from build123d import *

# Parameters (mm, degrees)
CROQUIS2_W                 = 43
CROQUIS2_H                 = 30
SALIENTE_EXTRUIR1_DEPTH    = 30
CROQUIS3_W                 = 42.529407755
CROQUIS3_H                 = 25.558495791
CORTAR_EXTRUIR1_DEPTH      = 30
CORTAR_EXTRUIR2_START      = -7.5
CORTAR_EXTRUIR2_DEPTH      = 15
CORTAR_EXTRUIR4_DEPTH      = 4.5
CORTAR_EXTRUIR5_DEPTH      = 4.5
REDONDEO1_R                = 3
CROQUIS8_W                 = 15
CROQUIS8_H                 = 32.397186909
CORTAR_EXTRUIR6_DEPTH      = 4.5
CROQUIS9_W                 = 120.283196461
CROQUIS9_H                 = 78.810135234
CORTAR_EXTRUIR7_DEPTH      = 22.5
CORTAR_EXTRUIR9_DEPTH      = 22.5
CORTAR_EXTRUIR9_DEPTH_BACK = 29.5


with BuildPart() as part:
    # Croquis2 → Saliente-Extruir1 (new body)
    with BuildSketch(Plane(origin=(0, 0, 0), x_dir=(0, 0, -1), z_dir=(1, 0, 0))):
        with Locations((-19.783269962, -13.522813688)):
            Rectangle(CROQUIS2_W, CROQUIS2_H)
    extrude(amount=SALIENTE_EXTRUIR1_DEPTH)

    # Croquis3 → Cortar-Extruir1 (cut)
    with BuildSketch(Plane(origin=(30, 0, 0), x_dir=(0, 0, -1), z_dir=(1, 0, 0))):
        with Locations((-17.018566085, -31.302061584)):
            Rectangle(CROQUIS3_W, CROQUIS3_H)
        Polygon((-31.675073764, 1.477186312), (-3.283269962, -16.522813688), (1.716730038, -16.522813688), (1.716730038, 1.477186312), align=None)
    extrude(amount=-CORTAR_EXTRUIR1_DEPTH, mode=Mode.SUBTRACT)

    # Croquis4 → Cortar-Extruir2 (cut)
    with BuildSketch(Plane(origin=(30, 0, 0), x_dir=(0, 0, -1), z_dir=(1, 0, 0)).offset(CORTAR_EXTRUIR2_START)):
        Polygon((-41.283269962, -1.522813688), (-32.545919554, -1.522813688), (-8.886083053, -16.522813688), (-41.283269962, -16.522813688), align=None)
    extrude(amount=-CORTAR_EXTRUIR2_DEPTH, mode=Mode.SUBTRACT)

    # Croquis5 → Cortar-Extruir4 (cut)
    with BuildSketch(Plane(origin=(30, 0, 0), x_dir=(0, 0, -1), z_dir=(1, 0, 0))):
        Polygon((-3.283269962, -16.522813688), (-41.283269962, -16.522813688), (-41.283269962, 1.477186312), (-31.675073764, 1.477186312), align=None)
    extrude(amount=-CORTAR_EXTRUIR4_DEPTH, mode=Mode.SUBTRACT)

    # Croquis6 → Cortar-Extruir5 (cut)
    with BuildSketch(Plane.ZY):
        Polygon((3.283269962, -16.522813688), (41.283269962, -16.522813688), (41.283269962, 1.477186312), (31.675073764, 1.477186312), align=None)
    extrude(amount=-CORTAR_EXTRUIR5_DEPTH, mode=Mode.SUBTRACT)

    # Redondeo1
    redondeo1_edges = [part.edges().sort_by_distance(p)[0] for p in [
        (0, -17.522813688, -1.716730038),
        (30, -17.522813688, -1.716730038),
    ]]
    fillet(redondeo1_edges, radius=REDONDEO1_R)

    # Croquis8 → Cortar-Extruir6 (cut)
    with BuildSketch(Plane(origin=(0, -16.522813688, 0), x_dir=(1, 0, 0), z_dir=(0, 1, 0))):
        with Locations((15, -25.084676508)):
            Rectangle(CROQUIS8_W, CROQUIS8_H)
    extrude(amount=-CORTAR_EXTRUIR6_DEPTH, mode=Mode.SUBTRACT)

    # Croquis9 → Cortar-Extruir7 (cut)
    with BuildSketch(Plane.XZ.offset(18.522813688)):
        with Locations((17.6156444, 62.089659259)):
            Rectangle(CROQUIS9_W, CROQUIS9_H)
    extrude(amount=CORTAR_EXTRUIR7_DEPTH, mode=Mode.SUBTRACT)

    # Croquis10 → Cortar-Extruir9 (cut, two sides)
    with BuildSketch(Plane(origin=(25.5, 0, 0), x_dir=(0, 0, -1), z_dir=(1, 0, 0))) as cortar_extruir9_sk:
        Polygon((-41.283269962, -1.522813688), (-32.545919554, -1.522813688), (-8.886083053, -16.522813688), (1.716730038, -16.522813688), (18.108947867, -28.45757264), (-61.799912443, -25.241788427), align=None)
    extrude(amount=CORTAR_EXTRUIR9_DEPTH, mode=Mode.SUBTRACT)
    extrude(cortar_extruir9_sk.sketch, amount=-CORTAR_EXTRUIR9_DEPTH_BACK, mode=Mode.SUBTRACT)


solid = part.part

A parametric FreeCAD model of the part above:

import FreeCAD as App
import Part
import Sketcher
from FreeCAD import Vector
Q = App.Units.Quantity


def edges_at(feature, points):
    """Names of the edges that pass closest to the given points."""
    edges = feature.Shape.Edges
    near = lambda p: min(range(len(edges)), key=lambda i: edges[i].distToShape(Part.Vertex(*p))[0])
    return sorted({f"Edge{near(p) + 1}" for p in points})

doc = App.newDocument("Part")
body = doc.addObject("PartDesign::Body", "Body")

sketch1 = doc.addObject("Sketcher::SketchObject", "Sketch")
body.addObject(sketch1)
sketch1.AttachmentSupport = (doc.YZ_Plane, [""])
sketch1.MapMode = "FlatFace"
sketch1.addGeometry(Part.LineSegment(Vector(1.477186, 41.28327, 0), Vector(-28.522814, 41.28327, 0)), False)
sketch1.addGeometry(Part.LineSegment(Vector(-28.522814, 41.28327, 0), Vector(-28.522814, -1.71673, 0)), False)
sketch1.addGeometry(Part.LineSegment(Vector(-28.522814, -1.71673, 0), Vector(1.477186, -1.71673, 0)), False)
sketch1.addGeometry(Part.LineSegment(Vector(1.477186, -1.71673, 0), Vector(1.477186, 41.28327, 0)), False)
sketch1.addConstraint(Sketcher.Constraint("Coincident", 0, 2, 1, 1))
sketch1.addConstraint(Sketcher.Constraint("Coincident", 1, 2, 2, 1))
sketch1.addConstraint(Sketcher.Constraint("Coincident", 2, 2, 3, 1))
sketch1.addConstraint(Sketcher.Constraint("Coincident", 3, 2, 0, 1))
sketch1.addConstraint(Sketcher.Constraint("Horizontal", 0))
sketch1.addConstraint(Sketcher.Constraint("Vertical", 1))
sketch1.addConstraint(Sketcher.Constraint("Horizontal", 2))
sketch1.addConstraint(Sketcher.Constraint("Vertical", 3))
sketch1.addConstraint(Sketcher.Constraint("DistanceX", 0, 2, 0, 1, Q("30 mm")))
sketch1.addConstraint(Sketcher.Constraint("DistanceY", 1, 2, 1, 1, Q("43 mm")))
sketch1.addConstraint(Sketcher.Constraint("DistanceY", -1, 1, 0, 2, Q("41.28327 mm")))
sketch1.addConstraint(Sketcher.Constraint("DistanceX", 0, 2, -1, 1, Q("28.522814 mm")))
pad1 = doc.addObject("PartDesign::Pad", "Pad")
body.addObject(pad1)
pad1.Profile = sketch1
pad1.Length = 30

sketch2 = doc.addObject("Sketcher::SketchObject", "Sketch001")
body.addObject(sketch2)
sketch2.AttachmentSupport = (doc.YZ_Plane, [""])
sketch2.MapMode = "FlatFace"
sketch2.AttachmentOffset = App.Placement(Vector(0, 0, 30), App.Rotation())
sketch2.addGeometry(Part.LineSegment(Vector(-18.522814, 38.28327, 0), Vector(-44.081309, 38.28327, 0)), False)
sketch2.addGeometry(Part.LineSegment(Vector(-44.081309, 38.28327, 0), Vector(-44.081309, -4.246138, 0)), False)
sketch2.addGeometry(Part.LineSegment(Vector(-44.081309, -4.246138, 0), Vector(-18.522814, -4.246138, 0)), False)
sketch2.addGeometry(Part.LineSegment(Vector(-18.522814, -4.246138, 0), Vector(-18.522814, 38.28327, 0)), False)
sketch2.addGeometry(Part.LineSegment(Vector(1.477186, 31.675074, 0), Vector(-16.522814, 3.28327, 0)), False)
sketch2.addGeometry(Part.LineSegment(Vector(-16.522814, 3.28327, 0), Vector(-16.522814, -1.71673, 0)), False)
sketch2.addGeometry(Part.LineSegment(Vector(-16.522814, -1.71673, 0), Vector(1.477186, -1.71673, 0)), False)
sketch2.addGeometry(Part.LineSegment(Vector(1.477186, -1.71673, 0), Vector(1.477186, 31.675074, 0)), False)
sketch2.addConstraint(Sketcher.Constraint("Coincident", 0, 2, 1, 1))
sketch2.addConstraint(Sketcher.Constraint("Coincident", 1, 2, 2, 1))
sketch2.addConstraint(Sketcher.Constraint("Coincident", 2, 2, 3, 1))
sketch2.addConstraint(Sketcher.Constraint("Coincident", 3, 2, 0, 1))
sketch2.addConstraint(Sketcher.Constraint("Coincident", 4, 2, 5, 1))
sketch2.addConstraint(Sketcher.Constraint("Coincident", 5, 2, 6, 1))
sketch2.addConstraint(Sketcher.Constraint("Coincident", 6, 2, 7, 1))
sketch2.addConstraint(Sketcher.Constraint("Coincident", 7, 2, 4, 1))
sketch2.addConstraint(Sketcher.Constraint("Horizontal", 0))
sketch2.addConstraint(Sketcher.Constraint("Vertical", 1))
sketch2.addConstraint(Sketcher.Constraint("Horizontal", 2))
sketch2.addConstraint(Sketcher.Constraint("Vertical", 3))
sketch2.addConstraint(Sketcher.Constraint("Vertical", 5))
sketch2.addConstraint(Sketcher.Constraint("Horizontal", 6))
sketch2.addConstraint(Sketcher.Constraint("Vertical", 7))
sketch2.addConstraint(Sketcher.Constraint("DistanceX", 6, 1, 6, 2, Q("18 mm")))
sketch2.addConstraint(Sketcher.Constraint("DistanceY", 5, 2, 5, 1, Q("5 mm")))
sketch2.addConstraint(Sketcher.Constraint("DistanceX", 2, 2, 4, 2, Q("2 mm")))
sketch2.addConstraint(Sketcher.Constraint("DistanceY", 4, 2, 3, 2, Q("35 mm")))
sketch2.addConstraint(Sketcher.Constraint("Distance", 4, Q("33.616879 mm")))
sketch2.addConstraint(Sketcher.Constraint("DistanceX", 0, 2, 0, 1, Q("25.558496 mm")))
sketch2.addConstraint(Sketcher.Constraint("DistanceY", 1, 2, 1, 1, Q("42.529408 mm")))
sketch2.addConstraint(Sketcher.Constraint("DistanceX", 0, 2, -1, 1, Q("44.081309 mm")))
sketch2.addConstraint(Sketcher.Constraint("DistanceY", -1, 1, 0, 2, Q("38.28327 mm")))
pocket1 = doc.addObject("PartDesign::Pocket", "Pocket")
body.addObject(pocket1)
pocket1.Profile = sketch2
pocket1.Length = 30

sketch3 = doc.addObject("Sketcher::SketchObject", "Sketch002")
body.addObject(sketch3)
sketch3.AttachmentSupport = (doc.YZ_Plane, [""])
sketch3.MapMode = "FlatFace"
sketch3.AttachmentOffset = App.Placement(Vector(0, 0, 22.5), App.Rotation())
sketch3.addGeometry(Part.LineSegment(Vector(-1.522814, 32.54592, 0), Vector(-1.522814, 41.28327, 0)), False)
sketch3.addGeometry(Part.LineSegment(Vector(-1.522814, 41.28327, 0), Vector(-16.522814, 41.28327, 0)), False)
sketch3.addGeometry(Part.LineSegment(Vector(-16.522814, 41.28327, 0), Vector(-16.522814, 8.886083, 0)), False)
sketch3.addGeometry(Part.LineSegment(Vector(-16.522814, 8.886083, 0), Vector(-1.522814, 32.54592, 0)), False)
sketch3.addConstraint(Sketcher.Constraint("Coincident", 0, 2, 1, 1))
sketch3.addConstraint(Sketcher.Constraint("Coincident", 1, 2, 2, 1))
sketch3.addConstraint(Sketcher.Constraint("Coincident", 2, 2, 3, 1))
sketch3.addConstraint(Sketcher.Constraint("Coincident", 3, 2, 0, 1))
sketch3.addConstraint(Sketcher.Constraint("Vertical", 0))
sketch3.addConstraint(Sketcher.Constraint("Horizontal", 1))
sketch3.addConstraint(Sketcher.Constraint("Vertical", 2))
sketch3.addConstraint(Sketcher.Constraint("DistanceX", 1, 2, 1, 1, Q("15 mm")))
sketch3.addConstraint(Sketcher.Constraint("DistanceY", 0, 1, 0, 2, Q("8.73735 mm")))
sketch3.addConstraint(Sketcher.Constraint("DistanceY", 2, 2, 2, 1, Q("32.397187 mm")))
sketch3.addConstraint(Sketcher.Constraint("DistanceY", -1, 1, 0, 2, Q("41.28327 mm")))
sketch3.addConstraint(Sketcher.Constraint("DistanceX", 0, 2, -1, 1, Q("1.522814 mm")))
pocket2 = doc.addObject("PartDesign::Pocket", "Pocket001")
body.addObject(pocket2)
pocket2.Profile = sketch3
pocket2.Length = 15

sketch4 = doc.addObject("Sketcher::SketchObject", "Sketch003")
body.addObject(sketch4)
sketch4.AttachmentSupport = (doc.YZ_Plane, [""])
sketch4.MapMode = "FlatFace"
sketch4.AttachmentOffset = App.Placement(Vector(0, 0, 30), App.Rotation())
sketch4.addGeometry(Part.LineSegment(Vector(-16.522814, 41.28327, 0), Vector(-16.522814, 3.28327, 0)), False)
sketch4.addGeometry(Part.LineSegment(Vector(-16.522814, 3.28327, 0), Vector(1.477186, 31.675074, 0)), False)
sketch4.addGeometry(Part.LineSegment(Vector(1.477186, 31.675074, 0), Vector(1.477186, 41.28327, 0)), False)
sketch4.addGeometry(Part.LineSegment(Vector(1.477186, 41.28327, 0), Vector(-16.522814, 41.28327, 0)), False)
sketch4.addConstraint(Sketcher.Constraint("Coincident", 0, 2, 1, 1))
sketch4.addConstraint(Sketcher.Constraint("Coincident", 1, 2, 2, 1))
sketch4.addConstraint(Sketcher.Constraint("Coincident", 2, 2, 3, 1))
sketch4.addConstraint(Sketcher.Constraint("Coincident", 3, 2, 0, 1))
sketch4.addConstraint(Sketcher.Constraint("Vertical", 0))
sketch4.addConstraint(Sketcher.Constraint("Vertical", 2))
sketch4.addConstraint(Sketcher.Constraint("Horizontal", 3))
sketch4.addConstraint(Sketcher.Constraint("DistanceX", 3, 2, 3, 1, Q("18 mm")))
sketch4.addConstraint(Sketcher.Constraint("DistanceY", 0, 2, 0, 1, Q("38 mm")))
sketch4.addConstraint(Sketcher.Constraint("Distance", 1, Q("33.616879 mm")))
sketch4.addConstraint(Sketcher.Constraint("DistanceY", -1, 1, 0, 2, Q("3.28327 mm")))
sketch4.addConstraint(Sketcher.Constraint("DistanceX", 0, 2, -1, 1, Q("16.522814 mm")))
pocket3 = doc.addObject("PartDesign::Pocket", "Pocket002")
body.addObject(pocket3)
pocket3.Profile = sketch4
pocket3.Length = 4.5

sketch5 = doc.addObject("Sketcher::SketchObject", "Sketch004")
body.addObject(sketch5)
sketch5.AttachmentSupport = (doc.YZ_Plane, [""])
sketch5.MapMode = "FlatFace"
sketch5.addGeometry(Part.LineSegment(Vector(-16.522814, 3.28327, 0), Vector(-16.522814, 41.28327, 0)), False)
sketch5.addGeometry(Part.LineSegment(Vector(-16.522814, 41.28327, 0), Vector(1.477186, 41.28327, 0)), False)
sketch5.addGeometry(Part.LineSegment(Vector(1.477186, 41.28327, 0), Vector(1.477186, 31.675074, 0)), False)
sketch5.addGeometry(Part.LineSegment(Vector(1.477186, 31.675074, 0), Vector(-16.522814, 3.28327, 0)), False)
sketch5.addConstraint(Sketcher.Constraint("Coincident", 0, 2, 1, 1))
sketch5.addConstraint(Sketcher.Constraint("Coincident", 1, 2, 2, 1))
sketch5.addConstraint(Sketcher.Constraint("Coincident", 2, 2, 3, 1))
sketch5.addConstraint(Sketcher.Constraint("Coincident", 3, 2, 0, 1))
sketch5.addConstraint(Sketcher.Constraint("Vertical", 0))
sketch5.addConstraint(Sketcher.Constraint("Horizontal", 1))
sketch5.addConstraint(Sketcher.Constraint("Vertical", 2))
sketch5.addConstraint(Sketcher.Constraint("DistanceX", 1, 1, 1, 2, Q("18 mm")))
sketch5.addConstraint(Sketcher.Constraint("DistanceY", 0, 1, 0, 2, Q("38 mm")))
sketch5.addConstraint(Sketcher.Constraint("Distance", 3, Q("33.616879 mm")))
sketch5.addConstraint(Sketcher.Constraint("DistanceY", -1, 1, 0, 2, Q("41.28327 mm")))
sketch5.addConstraint(Sketcher.Constraint("DistanceX", 0, 2, -1, 1, Q("16.522814 mm")))
pocket4 = doc.addObject("PartDesign::Pocket", "Pocket003")
body.addObject(pocket4)
pocket4.Profile = sketch5
pocket4.Length = 4.5
pocket4.Reversed = True
doc.recompute()

fillet = doc.addObject("PartDesign::Fillet", "Fillet")
body.addObject(fillet)
fillet.Base = (pocket4, edges_at(pocket4, [(0, -17.523, -1.717), (30, -17.523, -1.717)]))
fillet.Radius = 3

sketch6 = doc.addObject("Sketcher::SketchObject", "Sketch005")
body.addObject(sketch6)
sketch6.AttachmentSupport = (doc.XZ_Plane, [""])
sketch6.MapMode = "FlatFace"
sketch6.AttachmentOffset = App.Placement(Vector(0, 0, 16.522814), App.Rotation())
sketch6.addGeometry(Part.LineSegment(Vector(7.5, 8.886083, 0), Vector(7.5, 41.28327, 0)), False)
sketch6.addGeometry(Part.LineSegment(Vector(7.5, 41.28327, 0), Vector(22.5, 41.28327, 0)), False)
sketch6.addGeometry(Part.LineSegment(Vector(22.5, 41.28327, 0), Vector(22.5, 8.886083, 0)), False)
sketch6.addGeometry(Part.LineSegment(Vector(22.5, 8.886083, 0), Vector(7.5, 8.886083, 0)), False)
sketch6.addConstraint(Sketcher.Constraint("Coincident", 0, 2, 1, 1))
sketch6.addConstraint(Sketcher.Constraint("Coincident", 1, 2, 2, 1))
sketch6.addConstraint(Sketcher.Constraint("Coincident", 2, 2, 3, 1))
sketch6.addConstraint(Sketcher.Constraint("Coincident", 3, 2, 0, 1))
sketch6.addConstraint(Sketcher.Constraint("Vertical", 0))
sketch6.addConstraint(Sketcher.Constraint("Horizontal", 1))
sketch6.addConstraint(Sketcher.Constraint("Vertical", 2))
sketch6.addConstraint(Sketcher.Constraint("Horizontal", 3))
sketch6.addConstraint(Sketcher.Constraint("DistanceX", 1, 1, 1, 2, Q("15 mm")))
sketch6.addConstraint(Sketcher.Constraint("DistanceX", -1, 1, 0, 2, Q("7.5 mm")))
sketch6.addConstraint(Sketcher.Constraint("DistanceY", 0, 1, 0, 2, Q("32.397187 mm")))
sketch6.addConstraint(Sketcher.Constraint("DistanceY", -1, 1, 0, 2, Q("41.28327 mm")))
pocket5 = doc.addObject("PartDesign::Pocket", "Pocket004")
body.addObject(pocket5)
pocket5.Profile = sketch6
pocket5.Length = 4.5
pocket5.Reversed = True

sketch7 = doc.addObject("Sketcher::SketchObject", "Sketch006")
body.addObject(sketch7)
sketch7.AttachmentSupport = (doc.XZ_Plane, [""])
sketch7.MapMode = "FlatFace"
sketch7.AttachmentOffset = App.Placement(Vector(0, 0, 18.522814), App.Rotation())
sketch7.addGeometry(Part.LineSegment(Vector(-42.525954, 101.494727, 0), Vector(-42.525954, 22.684592, 0)), False)
sketch7.addGeometry(Part.LineSegment(Vector(-42.525954, 22.684592, 0), Vector(77.757243, 22.684592, 0)), False)
sketch7.addGeometry(Part.LineSegment(Vector(77.757243, 22.684592, 0), Vector(77.757243, 101.494727, 0)), False)
sketch7.addGeometry(Part.LineSegment(Vector(77.757243, 101.494727, 0), Vector(-42.525954, 101.494727, 0)), False)
sketch7.addConstraint(Sketcher.Constraint("Coincident", 0, 2, 1, 1))
sketch7.addConstraint(Sketcher.Constraint("Coincident", 1, 2, 2, 1))
sketch7.addConstraint(Sketcher.Constraint("Coincident", 2, 2, 3, 1))
sketch7.addConstraint(Sketcher.Constraint("Coincident", 3, 2, 0, 1))
sketch7.addConstraint(Sketcher.Constraint("Vertical", 0))
sketch7.addConstraint(Sketcher.Constraint("Horizontal", 1))
sketch7.addConstraint(Sketcher.Constraint("Vertical", 2))
sketch7.addConstraint(Sketcher.Constraint("Horizontal", 3))
sketch7.addConstraint(Sketcher.Constraint("DistanceX", 1, 1, 1, 2, Q("120.283196 mm")))
sketch7.addConstraint(Sketcher.Constraint("DistanceY", 0, 2, 0, 1, Q("78.810135 mm")))
sketch7.addConstraint(Sketcher.Constraint("DistanceY", -1, 1, 0, 2, Q("22.684592 mm")))
sketch7.addConstraint(Sketcher.Constraint("DistanceX", 0, 2, -1, 1, Q("42.525954 mm")))
pocket6 = doc.addObject("PartDesign::Pocket", "Pocket005")
body.addObject(pocket6)
pocket6.Profile = sketch7
pocket6.Length = 22.5
pocket6.Reversed = True

sketch8 = doc.addObject("Sketcher::SketchObject", "Sketch007")
body.addObject(sketch8)
sketch8.AttachmentSupport = (doc.YZ_Plane, [""])
sketch8.MapMode = "FlatFace"
sketch8.AttachmentOffset = App.Placement(Vector(0, 0, 25.5), App.Rotation())
sketch8.addGeometry(Part.LineSegment(Vector(-1.522814, 32.54592, 0), Vector(-1.522814, 41.28327, 0)), False)
sketch8.addGeometry(Part.LineSegment(Vector(-1.522814, 41.28327, 0), Vector(-25.241788, 61.799912, 0)), False)
sketch8.addGeometry(Part.LineSegment(Vector(-25.241788, 61.799912, 0), Vector(-28.457573, -18.108948, 0)), False)
sketch8.addGeometry(Part.LineSegment(Vector(-28.457573, -18.108948, 0), Vector(-16.522814, -1.71673, 0)), False)
sketch8.addGeometry(Part.LineSegment(Vector(-16.522814, -1.71673, 0), Vector(-16.522814, 8.886083, 0)), False)
sketch8.addGeometry(Part.LineSegment(Vector(-16.522814, 8.886083, 0), Vector(-1.522814, 32.54592, 0)), False)
sketch8.addConstraint(Sketcher.Constraint("Coincident", 0, 2, 1, 1))
sketch8.addConstraint(Sketcher.Constraint("Coincident", 1, 2, 2, 1))
sketch8.addConstraint(Sketcher.Constraint("Coincident", 2, 2, 3, 1))
sketch8.addConstraint(Sketcher.Constraint("Coincident", 3, 2, 4, 1))
sketch8.addConstraint(Sketcher.Constraint("Coincident", 4, 2, 5, 1))
sketch8.addConstraint(Sketcher.Constraint("Coincident", 5, 2, 0, 1))
sketch8.addConstraint(Sketcher.Constraint("Vertical", 0))
sketch8.addConstraint(Sketcher.Constraint("Vertical", 4))
sketch8.addConstraint(Sketcher.Constraint("DistanceX", 3, 2, 0, 2, Q("15 mm")))
sketch8.addConstraint(Sketcher.Constraint("DistanceY", 3, 2, 0, 2, Q("43 mm")))
sketch8.addConstraint(Sketcher.Constraint("DistanceY", 0, 1, 0, 2, Q("8.73735 mm")))
sketch8.addConstraint(Sketcher.Constraint("Distance", 1, Q("31.36116 mm")))
sketch8.addConstraint(Sketcher.Constraint("Distance", 2, Q("79.973541 mm")))
sketch8.addConstraint(Sketcher.Constraint("Distance", 3, Q("20.276668 mm")))
sketch8.addConstraint(Sketcher.Constraint("DistanceY", 4, 1, 4, 2, Q("10.602813 mm")))
sketch8.addConstraint(Sketcher.Constraint("DistanceY", -1, 1, 0, 2, Q("41.28327 mm")))
sketch8.addConstraint(Sketcher.Constraint("DistanceX", 1, 2, -1, 1, Q("25.241788 mm")))
sketch8.addConstraint(Sketcher.Constraint("DistanceX", 2, 2, 0, 2, Q("26.934759 mm")))
pocket7 = doc.addObject("PartDesign::Pocket", "Pocket006")
body.addObject(pocket7)
pocket7.Profile = sketch8
pocket7.Type = "ThroughAll"
pocket7.Midplane = True

doc.recompute()
